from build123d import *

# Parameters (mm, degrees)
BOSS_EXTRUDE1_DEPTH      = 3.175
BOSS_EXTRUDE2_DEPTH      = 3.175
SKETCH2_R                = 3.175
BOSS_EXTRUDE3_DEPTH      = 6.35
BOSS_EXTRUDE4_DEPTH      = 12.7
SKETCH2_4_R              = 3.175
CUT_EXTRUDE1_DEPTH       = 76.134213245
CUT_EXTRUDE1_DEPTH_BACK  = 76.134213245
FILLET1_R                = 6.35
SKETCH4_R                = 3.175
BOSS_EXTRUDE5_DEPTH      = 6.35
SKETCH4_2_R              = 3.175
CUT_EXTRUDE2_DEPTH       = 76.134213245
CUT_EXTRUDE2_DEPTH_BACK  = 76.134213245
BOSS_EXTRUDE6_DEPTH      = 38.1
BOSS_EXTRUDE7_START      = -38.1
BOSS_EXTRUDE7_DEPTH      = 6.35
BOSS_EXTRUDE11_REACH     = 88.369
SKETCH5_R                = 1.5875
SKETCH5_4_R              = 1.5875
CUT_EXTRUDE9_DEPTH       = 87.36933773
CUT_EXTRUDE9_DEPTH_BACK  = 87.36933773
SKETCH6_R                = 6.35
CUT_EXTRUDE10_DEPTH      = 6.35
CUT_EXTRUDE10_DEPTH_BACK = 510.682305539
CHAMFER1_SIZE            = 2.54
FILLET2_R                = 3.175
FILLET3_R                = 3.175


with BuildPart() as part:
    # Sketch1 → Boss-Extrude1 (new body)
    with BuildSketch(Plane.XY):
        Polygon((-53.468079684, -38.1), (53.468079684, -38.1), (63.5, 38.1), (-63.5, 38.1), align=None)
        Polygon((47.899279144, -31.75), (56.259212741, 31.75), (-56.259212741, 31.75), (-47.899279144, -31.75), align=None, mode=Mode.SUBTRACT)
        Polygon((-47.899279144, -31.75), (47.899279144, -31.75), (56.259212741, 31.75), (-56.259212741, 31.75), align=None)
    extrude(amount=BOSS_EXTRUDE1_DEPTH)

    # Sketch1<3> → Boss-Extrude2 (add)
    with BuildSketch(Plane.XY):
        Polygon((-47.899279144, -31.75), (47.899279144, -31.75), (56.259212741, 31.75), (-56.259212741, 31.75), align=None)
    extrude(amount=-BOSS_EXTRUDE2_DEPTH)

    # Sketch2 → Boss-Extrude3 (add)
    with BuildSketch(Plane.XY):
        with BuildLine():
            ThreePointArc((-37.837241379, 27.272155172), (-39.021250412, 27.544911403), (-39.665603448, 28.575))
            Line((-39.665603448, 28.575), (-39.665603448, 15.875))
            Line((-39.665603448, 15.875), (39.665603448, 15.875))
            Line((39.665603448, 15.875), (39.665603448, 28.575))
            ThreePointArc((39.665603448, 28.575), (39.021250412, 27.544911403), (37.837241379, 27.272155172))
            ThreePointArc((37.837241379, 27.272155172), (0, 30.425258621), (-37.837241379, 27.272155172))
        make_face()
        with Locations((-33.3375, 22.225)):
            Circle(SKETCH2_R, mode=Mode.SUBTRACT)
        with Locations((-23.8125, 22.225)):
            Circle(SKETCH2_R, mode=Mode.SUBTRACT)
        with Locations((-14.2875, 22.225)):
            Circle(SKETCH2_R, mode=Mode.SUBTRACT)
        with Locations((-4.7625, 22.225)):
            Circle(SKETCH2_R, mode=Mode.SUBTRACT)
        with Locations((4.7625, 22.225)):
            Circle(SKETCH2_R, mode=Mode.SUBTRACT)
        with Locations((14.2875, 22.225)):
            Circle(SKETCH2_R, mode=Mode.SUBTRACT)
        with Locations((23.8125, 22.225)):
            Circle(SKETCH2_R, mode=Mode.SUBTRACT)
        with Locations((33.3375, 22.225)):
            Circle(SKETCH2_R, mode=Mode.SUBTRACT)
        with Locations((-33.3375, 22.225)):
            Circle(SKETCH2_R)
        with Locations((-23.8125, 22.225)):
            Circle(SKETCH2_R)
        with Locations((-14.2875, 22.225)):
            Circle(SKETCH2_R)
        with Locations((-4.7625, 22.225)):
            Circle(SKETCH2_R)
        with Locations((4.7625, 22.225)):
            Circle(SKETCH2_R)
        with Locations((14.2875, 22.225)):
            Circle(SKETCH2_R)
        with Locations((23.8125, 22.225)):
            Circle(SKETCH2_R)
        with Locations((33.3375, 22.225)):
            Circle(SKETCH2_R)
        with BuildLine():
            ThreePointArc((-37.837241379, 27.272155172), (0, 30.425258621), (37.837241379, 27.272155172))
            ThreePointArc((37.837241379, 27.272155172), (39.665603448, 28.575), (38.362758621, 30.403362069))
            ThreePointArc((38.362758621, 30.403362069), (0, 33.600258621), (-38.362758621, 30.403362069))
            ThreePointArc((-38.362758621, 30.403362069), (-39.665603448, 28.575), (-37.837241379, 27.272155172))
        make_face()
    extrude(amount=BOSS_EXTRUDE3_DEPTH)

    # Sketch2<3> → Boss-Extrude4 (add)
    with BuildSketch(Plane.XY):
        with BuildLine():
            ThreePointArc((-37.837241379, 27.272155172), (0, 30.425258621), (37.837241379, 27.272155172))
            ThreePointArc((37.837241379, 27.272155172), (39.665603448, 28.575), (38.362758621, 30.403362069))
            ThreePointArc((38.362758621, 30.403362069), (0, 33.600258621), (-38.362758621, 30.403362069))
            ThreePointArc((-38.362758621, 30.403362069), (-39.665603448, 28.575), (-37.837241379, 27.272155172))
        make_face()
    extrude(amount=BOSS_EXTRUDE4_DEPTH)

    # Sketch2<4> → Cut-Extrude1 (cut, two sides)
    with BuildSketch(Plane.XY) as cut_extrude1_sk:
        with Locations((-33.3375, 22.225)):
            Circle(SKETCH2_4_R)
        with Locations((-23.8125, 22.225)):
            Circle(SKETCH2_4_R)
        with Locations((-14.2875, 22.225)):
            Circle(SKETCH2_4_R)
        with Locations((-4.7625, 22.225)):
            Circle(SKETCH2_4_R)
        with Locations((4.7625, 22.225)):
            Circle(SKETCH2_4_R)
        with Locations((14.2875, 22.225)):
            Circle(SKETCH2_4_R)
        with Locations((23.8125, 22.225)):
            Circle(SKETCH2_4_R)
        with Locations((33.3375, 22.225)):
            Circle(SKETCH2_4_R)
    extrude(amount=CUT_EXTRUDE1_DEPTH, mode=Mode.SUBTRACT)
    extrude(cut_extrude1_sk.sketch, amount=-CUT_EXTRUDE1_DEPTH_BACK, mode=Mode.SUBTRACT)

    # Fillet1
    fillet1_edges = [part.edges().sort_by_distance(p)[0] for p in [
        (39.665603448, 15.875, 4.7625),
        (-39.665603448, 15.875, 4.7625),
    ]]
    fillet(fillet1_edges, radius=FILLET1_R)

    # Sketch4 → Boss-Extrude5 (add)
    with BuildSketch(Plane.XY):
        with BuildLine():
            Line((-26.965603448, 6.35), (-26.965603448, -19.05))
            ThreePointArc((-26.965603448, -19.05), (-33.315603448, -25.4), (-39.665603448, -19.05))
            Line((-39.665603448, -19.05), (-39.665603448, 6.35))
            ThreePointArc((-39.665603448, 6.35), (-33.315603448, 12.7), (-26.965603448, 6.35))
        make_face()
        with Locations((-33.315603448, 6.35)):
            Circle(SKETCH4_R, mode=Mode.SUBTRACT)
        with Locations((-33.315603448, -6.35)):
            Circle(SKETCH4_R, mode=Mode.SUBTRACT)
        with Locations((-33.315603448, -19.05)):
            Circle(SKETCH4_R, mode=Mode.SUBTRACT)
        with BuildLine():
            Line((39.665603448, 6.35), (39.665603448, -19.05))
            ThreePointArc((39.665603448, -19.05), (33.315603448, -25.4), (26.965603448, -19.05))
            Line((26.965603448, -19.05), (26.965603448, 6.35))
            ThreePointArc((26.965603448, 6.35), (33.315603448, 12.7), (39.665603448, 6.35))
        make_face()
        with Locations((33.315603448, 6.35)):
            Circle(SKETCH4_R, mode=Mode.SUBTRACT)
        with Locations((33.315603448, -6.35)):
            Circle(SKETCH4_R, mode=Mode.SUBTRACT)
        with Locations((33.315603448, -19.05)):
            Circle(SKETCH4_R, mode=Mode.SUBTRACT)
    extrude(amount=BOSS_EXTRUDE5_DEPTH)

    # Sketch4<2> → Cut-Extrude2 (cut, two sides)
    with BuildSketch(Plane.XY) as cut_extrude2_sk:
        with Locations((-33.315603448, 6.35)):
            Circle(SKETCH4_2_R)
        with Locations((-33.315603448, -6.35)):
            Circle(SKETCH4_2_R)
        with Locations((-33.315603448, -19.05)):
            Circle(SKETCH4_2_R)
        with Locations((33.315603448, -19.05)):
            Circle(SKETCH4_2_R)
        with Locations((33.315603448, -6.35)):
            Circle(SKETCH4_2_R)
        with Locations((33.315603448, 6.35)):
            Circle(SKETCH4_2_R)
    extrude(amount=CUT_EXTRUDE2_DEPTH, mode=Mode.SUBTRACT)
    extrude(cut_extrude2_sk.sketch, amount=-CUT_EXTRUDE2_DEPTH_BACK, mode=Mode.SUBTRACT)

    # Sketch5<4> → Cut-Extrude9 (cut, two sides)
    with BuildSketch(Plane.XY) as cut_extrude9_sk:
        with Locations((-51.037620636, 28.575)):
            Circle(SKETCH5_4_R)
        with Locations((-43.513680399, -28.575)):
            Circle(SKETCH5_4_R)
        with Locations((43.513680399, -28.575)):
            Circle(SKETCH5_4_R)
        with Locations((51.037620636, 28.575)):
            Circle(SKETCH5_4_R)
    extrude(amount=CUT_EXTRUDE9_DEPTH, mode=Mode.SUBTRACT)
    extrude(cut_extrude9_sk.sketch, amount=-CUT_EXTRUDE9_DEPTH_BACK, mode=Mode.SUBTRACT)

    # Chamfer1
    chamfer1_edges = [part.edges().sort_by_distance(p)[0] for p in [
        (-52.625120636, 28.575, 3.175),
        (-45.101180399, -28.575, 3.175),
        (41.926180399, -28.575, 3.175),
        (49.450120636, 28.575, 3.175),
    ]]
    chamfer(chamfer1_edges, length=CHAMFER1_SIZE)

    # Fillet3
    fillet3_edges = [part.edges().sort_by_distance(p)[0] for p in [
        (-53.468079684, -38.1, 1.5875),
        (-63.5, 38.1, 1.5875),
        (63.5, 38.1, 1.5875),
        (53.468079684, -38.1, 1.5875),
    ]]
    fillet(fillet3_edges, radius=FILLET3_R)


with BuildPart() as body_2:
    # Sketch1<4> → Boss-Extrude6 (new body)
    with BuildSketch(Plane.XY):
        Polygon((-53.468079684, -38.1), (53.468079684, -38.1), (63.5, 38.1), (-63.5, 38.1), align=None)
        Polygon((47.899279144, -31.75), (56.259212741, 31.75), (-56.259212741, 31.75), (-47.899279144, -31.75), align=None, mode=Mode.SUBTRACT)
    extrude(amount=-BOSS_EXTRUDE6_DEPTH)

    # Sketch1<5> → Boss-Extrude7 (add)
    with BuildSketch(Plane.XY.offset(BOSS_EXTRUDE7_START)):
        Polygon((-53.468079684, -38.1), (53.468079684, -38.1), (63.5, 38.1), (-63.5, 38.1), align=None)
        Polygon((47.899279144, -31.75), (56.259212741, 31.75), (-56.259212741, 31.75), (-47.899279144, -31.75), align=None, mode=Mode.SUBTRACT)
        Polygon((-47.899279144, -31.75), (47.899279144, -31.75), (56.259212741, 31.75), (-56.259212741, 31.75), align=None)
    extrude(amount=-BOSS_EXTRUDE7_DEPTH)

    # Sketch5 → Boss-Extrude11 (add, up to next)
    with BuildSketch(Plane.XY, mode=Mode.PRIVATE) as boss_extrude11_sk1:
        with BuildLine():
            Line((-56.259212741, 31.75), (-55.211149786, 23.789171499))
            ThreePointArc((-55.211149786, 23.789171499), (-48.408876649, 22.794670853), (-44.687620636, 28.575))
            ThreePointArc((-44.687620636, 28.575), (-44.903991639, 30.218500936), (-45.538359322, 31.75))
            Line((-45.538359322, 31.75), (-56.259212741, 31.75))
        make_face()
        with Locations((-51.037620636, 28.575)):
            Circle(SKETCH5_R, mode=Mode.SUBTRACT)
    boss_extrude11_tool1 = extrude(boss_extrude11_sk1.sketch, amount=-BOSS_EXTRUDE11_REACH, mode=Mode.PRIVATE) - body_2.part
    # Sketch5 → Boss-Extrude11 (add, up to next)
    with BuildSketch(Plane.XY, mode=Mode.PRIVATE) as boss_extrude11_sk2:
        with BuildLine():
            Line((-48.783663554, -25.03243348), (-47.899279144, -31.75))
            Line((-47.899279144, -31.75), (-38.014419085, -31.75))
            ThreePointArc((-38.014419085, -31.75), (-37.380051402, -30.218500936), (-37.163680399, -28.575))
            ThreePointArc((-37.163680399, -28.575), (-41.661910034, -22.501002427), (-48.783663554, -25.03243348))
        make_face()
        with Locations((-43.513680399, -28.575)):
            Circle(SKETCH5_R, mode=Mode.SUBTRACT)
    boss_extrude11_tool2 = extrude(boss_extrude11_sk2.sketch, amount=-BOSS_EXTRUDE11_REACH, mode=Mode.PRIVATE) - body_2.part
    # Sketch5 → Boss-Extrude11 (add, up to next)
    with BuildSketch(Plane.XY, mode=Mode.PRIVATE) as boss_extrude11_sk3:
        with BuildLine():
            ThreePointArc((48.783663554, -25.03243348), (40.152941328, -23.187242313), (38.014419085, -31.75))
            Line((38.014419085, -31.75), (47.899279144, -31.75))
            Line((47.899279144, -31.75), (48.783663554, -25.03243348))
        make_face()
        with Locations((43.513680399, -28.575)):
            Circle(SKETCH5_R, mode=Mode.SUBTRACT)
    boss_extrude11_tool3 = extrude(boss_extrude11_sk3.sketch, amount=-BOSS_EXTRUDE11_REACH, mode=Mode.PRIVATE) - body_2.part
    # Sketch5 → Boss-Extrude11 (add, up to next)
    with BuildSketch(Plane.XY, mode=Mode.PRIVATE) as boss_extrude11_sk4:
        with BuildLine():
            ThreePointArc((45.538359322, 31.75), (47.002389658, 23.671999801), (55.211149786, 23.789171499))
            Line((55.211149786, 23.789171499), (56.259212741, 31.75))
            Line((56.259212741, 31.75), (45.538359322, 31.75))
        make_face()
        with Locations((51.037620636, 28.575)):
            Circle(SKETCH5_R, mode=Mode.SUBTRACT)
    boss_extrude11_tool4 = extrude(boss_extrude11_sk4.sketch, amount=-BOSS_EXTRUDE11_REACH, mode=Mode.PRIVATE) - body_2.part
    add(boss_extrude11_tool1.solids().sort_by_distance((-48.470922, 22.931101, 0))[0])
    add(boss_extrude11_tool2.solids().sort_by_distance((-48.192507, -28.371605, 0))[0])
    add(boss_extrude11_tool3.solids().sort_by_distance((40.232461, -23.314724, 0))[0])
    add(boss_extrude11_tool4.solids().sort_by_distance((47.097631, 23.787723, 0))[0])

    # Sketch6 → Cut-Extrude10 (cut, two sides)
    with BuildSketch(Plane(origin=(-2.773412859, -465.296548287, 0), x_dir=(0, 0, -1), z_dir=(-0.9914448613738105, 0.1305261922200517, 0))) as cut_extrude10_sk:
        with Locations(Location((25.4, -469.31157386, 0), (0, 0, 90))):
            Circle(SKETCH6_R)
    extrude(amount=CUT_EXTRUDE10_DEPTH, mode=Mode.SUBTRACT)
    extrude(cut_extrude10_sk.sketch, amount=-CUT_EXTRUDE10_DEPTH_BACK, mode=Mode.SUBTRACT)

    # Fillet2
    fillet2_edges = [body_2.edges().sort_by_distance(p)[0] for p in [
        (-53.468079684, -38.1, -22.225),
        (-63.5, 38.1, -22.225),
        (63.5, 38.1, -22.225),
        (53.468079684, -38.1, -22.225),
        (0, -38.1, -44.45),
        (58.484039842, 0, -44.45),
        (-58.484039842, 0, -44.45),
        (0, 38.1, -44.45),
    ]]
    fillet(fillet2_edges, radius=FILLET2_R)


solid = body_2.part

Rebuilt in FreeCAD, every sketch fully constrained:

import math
import FreeCAD as App
import Part
import Sketcher
from FreeCAD import Vector
Q = App.Units.Quantity


def edges_at(feature, points):
    """Names of the edges that pass closest to the given points."""
    edges = feature.Shape.Edges
    near = lambda p: min(range(len(edges)), key=lambda i: edges[i].distToShape(Part.Vertex(*p))[0])
    return sorted({f"Edge{near(p) + 1}" for p in points})


def add_polygon(sketch, points):
    """Adds a closed chain of lines whose ends are joined by coincident constraints."""
    first, n = sketch.GeometryCount, len(points)
    for a, b in zip(points, points[1:] + points[:1]):
        sketch.addGeometry(Part.LineSegment(App.Vector(*a, 0), App.Vector(*b, 0)), False)
    for i in range(n):
        sketch.addConstraint(Sketcher.Constraint("Coincident", first + i, 2, first + (i + 1) % n, 1))

doc = App.newDocument("Part")
body = doc.addObject("PartDesign::Body", "Body")

sketch1 = body.newObject("Sketcher::SketchObject", "Sketch")
sketch1.AttachmentSupport = (doc.getObject("XY_Plane"), [""])
sketch1.MapMode = "FlatFace"
add_polygon(sketch1, [(-53.46808, -38.1), (53.46808, -38.1), (63.5, 38.1), (-63.5, 38.1)])
sketch1.addConstraint([
    Sketcher.Constraint("Horizontal", 0),
    Sketcher.Constraint("Horizontal", 2),
    Sketcher.Constraint("Equal", 1, 3),
    Sketcher.Constraint("DistanceX", 2, 2, 2, 1, Q("5 in")),
    Sketcher.Constraint("DistanceY", 0, 2, 1, 2, Q("3 in")),
    Sketcher.Constraint("DistanceY", 0, 2, -1, 1, Q("1.5 in")),
    Sketcher.Constraint("DistanceX", -1, 1, 1, 2, Q("2.5 in")),
    Sketcher.Constraint("Angle", 1, Q("82.5 deg")),
])
pad1 = body.newObject("PartDesign::Pad", "Pad")
pad1.Profile = sketch1
pad1.Length = Q("0.125 in")

sketch2 = body.newObject("Sketcher::SketchObject", "Sketch001")
sketch2.AttachmentSupport = (doc.getObject("XY_Plane"), [""])
sketch2.MapMode = "FlatFace"
add_polygon(sketch2, [(-47.899279, -31.75), (47.899279, -31.75), (56.259213, 31.75), (-56.259213, 31.75)])
sketch2.addConstraint([
    Sketcher.Constraint("Horizontal", 0),
    Sketcher.Constraint("Horizontal", 2),
    Sketcher.Constraint("Equal", 1, 3),
    Sketcher.Constraint("Angle", 1, Q("82.5 deg")),
    Sketcher.Constraint("DistanceY", 0, 2, 1, 2, Q("2.5 in")),
    Sketcher.Constraint("DistanceY", 0, 2, -1, 1, Q("1.25 in")),
    Sketcher.Constraint("DistanceX", 0, 1, 0, 2, 95.798558),
    Sketcher.Constraint("DistanceX", -1, 1, 0, 2, 47.899279),
])
pad2 = body.newObject("PartDesign::Pad", "Pad001")
pad2.Profile = sketch2
pad2.Length = Q("0.125 in")
pad2.Reversed = True

sketch3 = body.newObject("Sketcher::SketchObject", "Sketch002")
sketch3.AttachmentSupport = (doc.getObject("XY_Plane"), [""])
sketch3.MapMode = "FlatFace"
sketch3.addGeometry([
    Part.LineSegment(Vector(-39.665603, 28.575, 0), Vector(-39.665603, 15.875, 0)),
    Part.LineSegment(Vector(-39.665603, 15.875, 0), Vector(39.665603, 15.875, 0)),
    Part.LineSegment(Vector(39.665603, 15.875, 0), Vector(39.665603, 28.575, 0)),
    Part.ArcOfCircle(Part.Circle(Vector(38.1, 28.837759, 0), Vector(0, 0, 1), 1.5875), math.radians(-9.527283), math.radians(80.472717)),
    Part.ArcOfCircle(Part.Circle(Vector(0, -198.174741, 0), Vector(0, 0, 1), 231.775), math.radians(80.472717), math.radians(99.527283)),
    Part.ArcOfCircle(Part.Circle(Vector(-38.1, 28.837759, 0), Vector(0, 0, 1), 1.5875), math.radians(99.527283), math.radians(189.527283)),
], False)
sketch3.addConstraint([
    Sketcher.Constraint("Coincident", 0, 2, 1, 1),
    Sketcher.Constraint("Coincident", 1, 2, 2, 1),
    Sketcher.Constraint("Coincident", 2, 2, 3, 1),
    Sketcher.Constraint("Tangent", 3, 2, 4, 1),
    Sketcher.Constraint("Tangent", 4, 2, 5, 1),
    Sketcher.Constraint("Coincident", 5, 2, 0, 1),
    Sketcher.Constraint("Vertical", 0),
    Sketcher.Constraint("Horizontal", 1),
    Sketcher.Constraint("Vertical", 2),
    Sketcher.Constraint("Equal", 3, 5),
    Sketcher.Constraint("Symmetric", 3, 3, 5, 3, -2),
    Sketcher.Constraint("Horizontal", 2, 2, 5, 2),
    Sketcher.Constraint("DistanceY", 0, 2, 0, 1, Q("0.5 in")),
    Sketcher.Constraint("Radius", 3, Q("0.0625 in")),
    Sketcher.Constraint("Radius", 4, Q("9.125 in")),
    Sketcher.Constraint("DistanceX", 5, 3, 3, 3, Q("3 in")),
    Sketcher.Constraint("DistanceY", -1, 1, 0, 2, Q("0.625 in")),
    Sketcher.Constraint("DistanceX", 1, 1, 1, 2, 79.331207),
])
pad3 = body.newObject("PartDesign::Pad", "Pad002")
pad3.Profile = sketch3
pad3.Length = Q("0.25 in")

sketch4 = body.newObject("Sketcher::SketchObject", "Sketch003")
sketch4.AttachmentSupport = (doc.getObject("XY_Plane"), [""])
sketch4.MapMode = "FlatFace"
sketch4.addGeometry([
    Part.ArcOfCircle(Part.Circle(Vector(0, -198.174741, 0), Vector(0, 0, 1), 228.6), math.radians(80.472717), math.radians(99.527283)),
    Part.ArcOfCircle(Part.Circle(Vector(38.1, 28.837759, 0), Vector(0, 0, 1), 1.5875), math.radians(-99.527283), math.radians(80.472717)),
    Part.ArcOfCircle(Part.Circle(Vector(0, -198.174741, 0), Vector(0, 0, 1), 231.775), math.radians(80.472717), math.radians(99.527283)),
    Part.ArcOfCircle(Part.Circle(Vector(-38.1, 28.837759, 0), Vector(0, 0, 1), 1.5875), math.radians(99.527283), math.radians(279.527283)),
], False)
sketch4.addConstraint([
    Sketcher.Constraint("Tangent", 0, 1, 1, 1),
    Sketcher.Constraint("Tangent", 1, 2, 2, 1),
    Sketcher.Constraint("Tangent", 2, 2, 3, 1),
    Sketcher.Constraint("Tangent", 3, 2, 0, 2),
    Sketcher.Constraint("Coincident", 2, 3, 0, 3),
    Sketcher.Constraint("Symmetric", 1, 3, 3, 3, -2),
    Sketcher.Constraint("Radius", 0, Q("9 in")),
    Sketcher.Constraint("Radius", 1, Q("0.0625 in")),
    Sketcher.Constraint("DistanceX", 3, 3, 1, 3, Q("3 in")),
    Sketcher.Constraint("DistanceY", 0, 3, -1, 1, 198.174741),
])
pad4 = body.newObject("PartDesign::Pad", "Pad003")
pad4.Profile = sketch4
pad4.Length = Q("0.5 in")

sketch5 = body.newObject("Sketcher::SketchObject", "Sketch004")
sketch5.AttachmentSupport = (doc.getObject("XY_Plane"), [""])
sketch5.MapMode = "FlatFace"
sketch5.addGeometry([
    Part.Circle(Vector(-33.3375, 22.225, 0), Vector(0, 0, 1), 3.175),
    Part.Circle(Vector(-23.8125, 22.225, 0), Vector(0, 0, 1), 3.175),
    Part.Circle(Vector(-14.2875, 22.225, 0), Vector(0, 0, 1), 3.175),
    Part.Circle(Vector(-4.7625, 22.225, 0), Vector(0, 0, 1), 3.175),
    Part.Circle(Vector(4.7625, 22.225, 0), Vector(0, 0, 1), 3.175),
    Part.Circle(Vector(14.2875, 22.225, 0), Vector(0, 0, 1), 3.175),
    Part.Circle(Vector(23.8125, 22.225, 0), Vector(0, 0, 1), 3.175),
    Part.Circle(Vector(33.3375, 22.225, 0), Vector(0, 0, 1), 3.175),
], False)
sketch5.addConstraint([
    Sketcher.Constraint("Equal", 0, 1),
    Sketcher.Constraint("Equal", 1, 2),
    Sketcher.Constraint("Equal", 2, 3),
    Sketcher.Constraint("Equal", 3, 4),
    Sketcher.Constraint("Equal", 4, 5),
    Sketcher.Constraint("Equal", 5, 6),
    Sketcher.Constraint("Equal", 6, 7),
    Sketcher.Constraint("Symmetric", 3, 3, 4, 3, -2),
    Sketcher.Constraint("Symmetric", 2, 3, 5, 3, -2),
    Sketcher.Constraint("Symmetric", 1, 3, 6, 3, -2),
    Sketcher.Constraint("Symmetric", 0, 3, 7, 3, -2),
    Sketcher.Constraint("Horizontal", 0, 3, 1, 3),
    Sketcher.Constraint("Horizontal", 1, 3, 2, 3),
    Sketcher.Constraint("Horizontal", 2, 3, 3, 3),
    Sketcher.Constraint("Diameter", 0, Q("0.25 in")),
    Sketcher.Constraint("DistanceX", 0, 3, 4, 3, Q("1.5 in")),
    Sketcher.Constraint("DistanceX", 1, 3, 5, 3, Q("1.5 in")),
    Sketcher.Constraint("DistanceX", 0, 3, 2, 3, Q("0.75 in")),
    Sketcher.Constraint("DistanceX", 0, 3, -1, 1, Q("1.3125 in")),
    Sketcher.Constraint("DistanceY", -1, 1, 0, 3, Q("0.875 in")),
])
pocket1 = body.newObject("PartDesign::Pocket", "Pocket")
pocket1.Profile = sketch5
pocket1.Type = "ThroughAll"
pocket1.Midplane = True
doc.recompute()

fillet = body.newObject("PartDesign::Fillet", "Fillet")
fillet.Base = (pocket1, edges_at(pocket1, [(39.666, 15.875, 4.763), (-39.666, 15.875, 4.763)]))
fillet.Radius = Q("0.25 in")

sketch6 = body.newObject("Sketcher::SketchObject", "Sketch005")
sketch6.AttachmentSupport = (doc.getObject("XY_Plane"), [""])
sketch6.MapMode = "FlatFace"
sketch6.addGeometry([
    Part.LineSegment(Vector(-26.965603, -19.05, 0), Vector(-26.965603, 6.35, 0)),
    Part.ArcOfCircle(Part.Circle(Vector(-33.315603, 6.35, 0), Vector(0, 0, 1), 6.35), math.radians(0), math.radians(180)),
    Part.LineSegment(Vector(-39.665603, 6.35, 0), Vector(-39.665603, -19.05, 0)),
    Part.ArcOfCircle(Part.Circle(Vector(-33.315603, -19.05, 0), Vector(0, 0, 1), 6.35), math.radians(180), math.radians(360)),
    Part.Circle(Vector(-33.315603, -19.05, 0), Vector(0, 0, 1), 3.175),
    Part.Circle(Vector(-33.315603, -6.35, 0), Vector(0, 0, 1), 3.175),
    Part.Circle(Vector(-33.315603, 6.35, 0), Vector(0, 0, 1), 3.175),
    Part.LineSegment(Vector(39.665603, -19.05, 0), Vector(39.665603, 6.35, 0)),
    Part.ArcOfCircle(Part.Circle(Vector(33.315603, 6.35, 0), Vector(0, 0, 1), 6.35), math.radians(0), math.radians(180)),
    Part.LineSegment(Vector(26.965603, 6.35, 0), Vector(26.965603, -19.05, 0)),
    Part.ArcOfCircle(Part.Circle(Vector(33.315603, -19.05, 0), Vector(0, 0, 1), 6.35), math.radians(180), math.radians(360)),
    Part.Circle(Vector(33.315603, -19.05, 0), Vector(0, 0, 1), 3.175),
    Part.Circle(Vector(33.315603, -6.35, 0), Vector(0, 0, 1), 3.175),
    Part.Circle(Vector(33.315603, 6.35, 0), Vector(0, 0, 1), 3.175),
], False)
sketch6.addConstraint([
    Sketcher.Constraint("Tangent", 0, 2, 1, 1),
    Sketcher.Constraint("Tangent", 1, 2, 2, 1),
    Sketcher.Constraint("Tangent", 2, 2, 3, 1),
    Sketcher.Constraint("Tangent", 3, 2, 0, 1),
    Sketcher.Constraint("Tangent", 7, 2, 8, 1),
    Sketcher.Constraint("Tangent", 8, 2, 9, 1),
    Sketcher.Constraint("Tangent", 9, 2, 10, 1),
    Sketcher.Constraint("Tangent", 10, 2, 7, 1),
    Sketcher.Constraint("Vertical", 0),
    Sketcher.Constraint("Vertical", 2),
    Sketcher.Constraint("Vertical", 7),
    Sketcher.Constraint("Vertical", 9),
    Sketcher.Constraint("Coincident", 4, 3, 3, 3),
    Sketcher.Constraint("Coincident", 6, 3, 1, 3),
    Sketcher.Constraint("Coincident", 11, 3, 10, 3),
    Sketcher.Constraint("Coincident", 13, 3, 8, 3),
    Sketcher.Constraint("Equal", 4, 5),
    Sketcher.Constraint("Equal", 5, 6),
    Sketcher.Constraint("Equal", 3, 8),
    Sketcher.Constraint("Equal", 6, 11),
    Sketcher.Constraint("Equal", 11, 12),
    Sketcher.Constraint("Equal", 12, 13),
    Sketcher.Constraint("Symmetric", 5, 3, 8, 3, -1, 1),
    Sketcher.Constraint("Symmetric", 1, 3, 12, 3, -1, 1),
    Sketcher.Constraint("Symmetric", 1, 3, 8, 3, -2),
    Sketcher.Constraint("Horizontal", 4, 3, 10, 3),
    Sketcher.Constraint("Diameter", 4, Q("0.25 in")),
    Sketcher.Constraint("DistanceY", 0, 1, 0, 2, Q("1 in")),
    Sketcher.Constraint("Radius", 1, Q("0.25 in")),
    Sketcher.Constraint("DistanceY", 5, 3, 1, 3, Q("0.5 in")),
    Sketcher.Constraint("DistanceX", 1, 3, -1, 1, 33.315603),
])
pad5 = body.newObject("PartDesign::Pad", "Pad004")
pad5.Profile = sketch6
pad5.Length = Q("0.25 in")

sketch7 = body.newObject("Sketcher::SketchObject", "Sketch006")
sketch7.AttachmentSupport = (doc.getObject("XY_Plane"), [""])
sketch7.MapMode = "FlatFace"
sketch7.addGeometry([
    Part.Circle(Vector(-33.315603, 6.35, 0), Vector(0, 0, 1), 3.175),
    Part.Circle(Vector(-33.315603, -6.35, 0), Vector(0, 0, 1), 3.175),
    Part.Circle(Vector(-33.315603, -19.05, 0), Vector(0, 0, 1), 3.175),
    Part.Circle(Vector(33.315603, -19.05, 0), Vector(0, 0, 1), 3.175),
    Part.Circle(Vector(33.315603, -6.35, 0), Vector(0, 0, 1), 3.175),
    Part.Circle(Vector(33.315603, 6.35, 0), Vector(0, 0, 1), 3.175),
], False)
sketch7.addConstraint([
    Sketcher.Constraint("Equal", 0, 1),
    Sketcher.Constraint("Equal", 1, 2),
    Sketcher.Constraint("Equal", 2, 3),
    Sketcher.Constraint("Equal", 3, 4),
    Sketcher.Constraint("Equal", 4, 5),
    Sketcher.Constraint("Symmetric", 0, 3, 4, 3, -1, 1),
    Sketcher.Constraint("Symmetric", 1, 3, 5, 3, -1, 1),
    Sketcher.Constraint("Symmetric", 2, 3, 3, 3, -2),
    Sketcher.Constraint("Symmetric", 1, 3, 4, 3, -2),
    Sketcher.Constraint("Vertical", 1, 3, 2, 3),
    Sketcher.Constraint("Diameter", 0, Q("0.25 in")),
    Sketcher.Constraint("DistanceY", 2, 3, 0, 3, Q("1 in")),
    Sketcher.Constraint("DistanceY", 1, 3, 0, 3, Q("0.5 in")),
    Sketcher.Constraint("DistanceX", 0, 3, -1, 1, 33.315603),
])
pocket2 = body.newObject("PartDesign::Pocket", "Pocket001")
pocket2.Profile = sketch7
pocket2.Type = "ThroughAll"
pocket2.Midplane = True

sketch8 = body.newObject("Sketcher::SketchObject", "Sketch007")
sketch8.AttachmentSupport = (doc.getObject("XY_Plane"), [""])
sketch8.MapMode = "FlatFace"
sketch8.addGeometry([
    Part.Circle(Vector(-51.037621, 28.575, 0), Vector(0, 0, 1), 1.5875),
    Part.Circle(Vector(-43.51368, -28.575, 0), Vector(0, 0, 1), 1.5875),
    Part.Circle(Vector(43.51368, -28.575, 0), Vector(0, 0, 1), 1.5875),
    Part.Circle(Vector(51.037621, 28.575, 0), Vector(0, 0, 1), 1.5875),
], False)
sketch8.addConstraint([
    Sketcher.Constraint("Equal", 0, 1),
    Sketcher.Constraint("Equal", 1, 2),
    Sketcher.Constraint("Equal", 2, 3),
    Sketcher.Constraint("Symmetric", 1, 3, 2, 3, -2),
    Sketcher.Constraint("Symmetric", 0, 3, 3, 3, -2),
    Sketcher.Constraint("Diameter", 0, Q("0.125 in")),
    Sketcher.Constraint("DistanceY", 1, 3, 0, 3, Q("2.25 in")),
    Sketcher.Constraint("DistanceY", -1, 1, 0, 3, Q("1.125 in")),
    Sketcher.Constraint("DistanceX", 0, 3, 2, 3, 94.551301),
    Sketcher.Constraint("DistanceX", 0, 3, -1, 1, 51.037621),
])
pocket3 = body.newObject("PartDesign::Pocket", "Pocket002")
pocket3.Profile = sketch8
pocket3.Type = "ThroughAll"
pocket3.Midplane = True
doc.recompute()

chamfer = body.newObject("PartDesign::Chamfer", "Chamfer")
chamfer.Base = (pocket3, edges_at(pocket3, [
    (-52.625, 28.575, 3.175),
    (-45.101, -28.575, 3.175),
    (41.926, -28.575, 3.175),
    (49.45, 28.575, 3.175),
]))
chamfer.Size = Q("0.1 in")
doc.recompute()

fillet2 = body.newObject("PartDesign::Fillet", "Fillet001")
fillet2.Base = (chamfer, edges_at(chamfer, [
    (-53.468, -38.1, 1.587),
    (-63.5, 38.1, 1.587),
    (63.5, 38.1, 1.587),
    (53.468, -38.1, 1.587),
]))
fillet2.Radius = Q("0.125 in")
body2 = doc.addObject("PartDesign::Body", "Body001")

sketch9 = body2.newObject("Sketcher::SketchObject", "Sketch008")
sketch9.AttachmentSupport = (doc.getObject("XY_Plane001"), [""])
sketch9.MapMode = "FlatFace"
add_polygon(sketch9, [(-53.46808, -38.1), (53.46808, -38.1), (63.5, 38.1), (-63.5, 38.1)])
add_polygon(sketch9, [(56.259213, 31.75), (47.899279, -31.75), (-47.899279, -31.75), (-56.259213, 31.75)])
sketch9.addConstraint([
    Sketcher.Constraint("Horizontal", 0),
    Sketcher.Constraint("Horizontal", 2),
    Sketcher.Constraint("Horizontal", 5),
    Sketcher.Constraint("Horizontal", 7),
    Sketcher.Constraint("Parallel", 1, 4),
    Sketcher.Constraint("Parallel", 3, 6),
    Sketcher.Constraint("Equal", 1, 3),
    Sketcher.Constraint("DistanceX", 2, 2, 2, 1, Q("5 in")),
    Sketcher.Constraint("DistanceY", 0, 2, 1, 2, Q("3 in")),
    Sketcher.Constraint("DistanceY", 0, 2, -1, 1, Q("1.5 in")),
    Sketcher.Constraint("DistanceX", -1, 1, 1, 2, Q("2.5 in")),
    Sketcher.Constraint("Angle", 1, Q("82.5 deg")),
    Sketcher.Constraint("DistanceY", 5, 2, 6, 2, Q("2.5 in")),
    Sketcher.Constraint("DistanceY", 4, 2, -1, 1, Q("1.25 in")),
    Sketcher.Constraint("DistanceX", 5, 2, 5, 1, 95.798558),
    Sketcher.Constraint("DistanceX", 4, 2, 0, 2, 5.568801),
])
pad6 = body2.newObject("PartDesign::Pad", "Pad005")
pad6.Profile = sketch9
pad6.Length = Q("1.5 in")
pad6.Reversed = True

sketch10 = body2.newObject("Sketcher::SketchObject", "Sketch009")
sketch10.AttachmentSupport = (doc.getObject("XY_Plane001"), [""])
sketch10.MapMode = "FlatFace"
sketch10.AttachmentOffset = App.Placement(Vector(0, 0, -1.5 * 25.4), App.Rotation())
add_polygon(sketch10, [(-53.46808, -38.1), (53.46808, -38.1), (63.5, 38.1), (-63.5, 38.1)])
sketch10.addConstraint([
    Sketcher.Constraint("Horizontal", 0),
    Sketcher.Constraint("Horizontal", 2),
    Sketcher.Constraint("Equal", 1, 3),
    Sketcher.Constraint("DistanceX", 2, 2, 2, 1, Q("5 in")),
    Sketcher.Constraint("DistanceY", 0, 2, 1, 2, Q("3 in")),
    Sketcher.Constraint("DistanceY", 0, 2, -1, 1, Q("1.5 in")),
    Sketcher.Constraint("DistanceX", -1, 1, 1, 2, Q("2.5 in")),
    Sketcher.Constraint("Angle", 1, Q("82.5 deg")),
])
pad7 = body2.newObject("PartDesign::Pad", "Pad006")
pad7.Profile = sketch10
pad7.Length = Q("0.25 in")
pad7.Reversed = True

sketch11 = body2.newObject("Sketcher::SketchObject", "Sketch010")
sketch11.AttachmentSupport = (doc.getObject("XY_Plane001"), [""])
sketch11.MapMode = "FlatFace"
sketch11.addGeometry([
    Part.LineSegment(Vector(-56.259213, 31.75, 0), Vector(-55.21115, 23.789171, 0)),
    Part.ArcOfCircle(Part.Circle(Vector(-51.037621, 28.575, 0), Vector(0, 0, 1), 6.35), math.radians(-131.090378), math.radians(0)),
    Part.ArcOfCircle(Part.Circle(Vector(-51.037621, 28.575, 0), Vector(0, 0, 1), 6.35), math.radians(0), math.radians(30)),
    Part.LineSegment(Vector(-45.538359, 31.75, 0), Vector(-56.259213, 31.75, 0)),
    Part.Circle(Vector(-51.037621, 28.575, 0), Vector(0, 0, 1), 1.5875),
], False)
sketch11.addConstraint([
    Sketcher.Constraint("Coincident", 0, 2, 1, 1),
    Sketcher.Constraint("Tangent", 1, 2, 2, 1),
    Sketcher.Constraint("Coincident", 2, 2, 3, 1),
    Sketcher.Constraint("Coincident", 3, 2, 0, 1),
    Sketcher.Constraint("Horizontal", 3),
    Sketcher.Constraint("Coincident", 4, 3, 1, 3),
    Sketcher.Constraint("Equal", 1, 2),
    Sketcher.Constraint("Horizontal", 4, 3, 1, 2),
    Sketcher.Constraint("Radius", 1, Q("0.25 in")),
    Sketcher.Constraint("Diameter", 4, Q("0.125 in")),
    Sketcher.Constraint("Angle", 0, Q("-82.5 deg")),
    Sketcher.Constraint("DistanceY", -1, 1, 2, 2, Q("1.25 in")),
    Sketcher.Constraint("DistanceY", -1, 1, 1, 3, Q("1.125 in")),
    Sketcher.Constraint("DistanceX", 3, 2, 3, 1, 10.720853),
    Sketcher.Constraint("DistanceX", 1, 3, -1, 1, 51.037621),
])
pad8 = body2.newObject("PartDesign::Pad", "Pad007")
pad8.Profile = sketch11
pad8.Type = "UpToFirst"
pad8.Reversed = True

sketch12 = body2.newObject("Sketcher::SketchObject", "Sketch011")
sketch12.AttachmentSupport = (doc.getObject("XY_Plane001"), [""])
sketch12.MapMode = "FlatFace"
sketch12.addGeometry([
    Part.LineSegment(Vector(-48.783664, -25.032433, 0), Vector(-47.899279, -31.75, 0)),
    Part.LineSegment(Vector(-47.899279, -31.75, 0), Vector(-38.014419, -31.75, 0)),
    Part.ArcOfCircle(Part.Circle(Vector(-43.51368, -28.575, 0), Vector(0, 0, 1), 6.35), math.radians(-30), math.radians(0)),
    Part.ArcOfCircle(Part.Circle(Vector(-43.51368, -28.575, 0), Vector(0, 0, 1), 6.35), math.radians(0), math.radians(146.090378)),
    Part.Circle(Vector(-43.51368, -28.575, 0), Vector(0, 0, 1), 1.5875),
], False)
sketch12.addConstraint([
    Sketcher.Constraint("Coincident", 0, 2, 1, 1),
    Sketcher.Constraint("Coincident", 1, 2, 2, 1),
    Sketcher.Constraint("Tangent", 2, 2, 3, 1),
    Sketcher.Constraint("Coincident", 3, 2, 0, 1),
    Sketcher.Constraint("Horizontal", 1),
    Sketcher.Constraint("Coincident", 4, 3, 2, 3),
    Sketcher.Constraint("Equal", 2, 3),
    Sketcher.Constraint("Horizontal", 4, 3, 2, 2),
    Sketcher.Constraint("Radius", 2, Q("0.25 in")),
    Sketcher.Constraint("Diameter", 4, Q("0.125 in")),
    Sketcher.Constraint("Angle", 0, Q("-82.5 deg")),
    Sketcher.Constraint("DistanceY", 0, 2, -1, 1, Q("1.25 in")),
    Sketcher.Constraint("DistanceY", 2, 3, -1, 1, Q("1.125 in")),
    Sketcher.Constraint("DistanceX", 1, 1, 1, 2, 9.88486),
    Sketcher.Constraint("DistanceX", 2, 3, -1, 1, 43.51368),
])
pad9 = body2.newObject("PartDesign::Pad", "Pad008")
pad9.Profile = sketch12
pad9.Type = "UpToFirst"
pad9.Reversed = True

sketch13 = body2.newObject("Sketcher::SketchObject", "Sketch012")
sketch13.AttachmentSupport = (doc.getObject("XY_Plane001"), [""])
sketch13.MapMode = "FlatFace"
sketch13.addGeometry([
    Part.ArcOfCircle(Part.Circle(Vector(43.51368, -28.575, 0), Vector(0, 0, 1), 6.35), math.radians(33.909622), math.radians(210)),
    Part.LineSegment(Vector(38.014419, -31.75, 0), Vector(47.899279, -31.75, 0)),
    Part.LineSegment(Vector(47.899279, -31.75, 0), Vector(48.783664, -25.032433, 0)),
    Part.Circle(Vector(43.51368, -28.575, 0), Vector(0, 0, 1), 1.5875),
], False)
sketch13.addConstraint([
    Sketcher.Constraint("Coincident", 0, 2, 1, 1),
    Sketcher.Constraint("Coincident", 1, 2, 2, 1),
    Sketcher.Constraint("Coincident", 2, 2, 0, 1),
    Sketcher.Constraint("Horizontal", 1),
    Sketcher.Constraint("Coincident", 3, 3, 0, 3),
    Sketcher.Constraint("Radius", 0, Q("0.25 in")),
    Sketcher.Constraint("Diameter", 3, Q("0.125 in")),
    Sketcher.Constraint("Angle", 2, Q("82.5 deg")),
    Sketcher.Constraint("DistanceY", 0, 2, -1, 1, Q("1.25 in")),
    Sketcher.Constraint("DistanceY", 0, 3, -1, 1, Q("1.125 in")),
    Sketcher.Constraint("DistanceX", 1, 1, 1, 2, 9.88486),
    Sketcher.Constraint("DistanceX", -1, 1, 0, 3, 43.51368),
])
pad10 = body2.newObject("PartDesign::Pad", "Pad009")
pad10.Profile = sketch13
pad10.Type = "UpToFirst"
pad10.Reversed = True

sketch14 = body2.newObject("Sketcher::SketchObject", "Sketch013")
sketch14.AttachmentSupport = (doc.getObject("XY_Plane001"), [""])
sketch14.MapMode = "FlatFace"
sketch14.addGeometry([
    Part.ArcOfCircle(Part.Circle(Vector(51.037621, 28.575, 0), Vector(0, 0, 1), 6.35), math.radians(150), math.radians(311.090378)),
    Part.LineSegment(Vector(55.21115, 23.789171, 0), Vector(56.259213, 31.75, 0)),
    Part.LineSegment(Vector(56.259213, 31.75, 0), Vector(45.538359, 31.75, 0)),
    Part.Circle(Vector(51.037621, 28.575, 0), Vector(0, 0, 1), 1.5875),
], False)
sketch14.addConstraint([
    Sketcher.Constraint("Coincident", 0, 2, 1, 1),
    Sketcher.Constraint("Coincident", 1, 2, 2, 1),
    Sketcher.Constraint("Coincident", 2, 2, 0, 1),
    Sketcher.Constraint("Horizontal", 2),
    Sketcher.Constraint("Coincident", 3, 3, 0, 3),
    Sketcher.Constraint("Radius", 0, Q("0.25 in")),
    Sketcher.Constraint("Diameter", 3, Q("0.125 in")),
    Sketcher.Constraint("Angle", 1, Q("82.5 deg")),
    Sketcher.Constraint("DistanceY", -1, 1, 1, 2, Q("1.25 in")),
    Sketcher.Constraint("DistanceY", -1, 1, 0, 3, Q("1.125 in")),
    Sketcher.Constraint("DistanceX", 2, 2, 2, 1, 10.720853),
    Sketcher.Constraint("DistanceX", -1, 1, 0, 3, 51.037621),
])
pad11 = body2.newObject("PartDesign::Pad", "Pad010")
pad11.Profile = sketch14
pad11.Type = "UpToFirst"
pad11.Reversed = True

sketch15 = body2.newObject("Sketcher::SketchObject", "Sketch014")
sketch15.Placement = App.Placement(Vector(-2.773413, -465.296548, 0), App.Rotation(Vector(0, 0, -1), Vector(-0.130526192, -0.991444861, 0), Vector(-0.991444861, 0.130526192, 0), "ZXY"))
sketch15.addGeometry(Part.Circle(Vector(25.4, -469.311573, 0), Vector(0, 0, 1), 6.35), False)
sketch15.addConstraint([
    Sketcher.Constraint("Diameter", 0, Q("0.5 in")),
    Sketcher.Constraint("DistanceX", -1, 1, 0, 3, Q("1 in")),
    Sketcher.Constraint("DistanceY", 0, 3, -1, 1, 469.311573),
])
pocket4 = body2.newObject("PartDesign::Pocket", "Pocket003")
pocket4.Profile = sketch15
pocket4.Type = "TwoLengths"
pocket4.Length = Q("0.25 in")
pocket4.Length2 = 510.682306
pocket4.Reversed = True
doc.recompute()

fillet3 = body2.newObject("PartDesign::Fillet", "Fillet002")
fillet3.Base = (pocket4, edges_at(pocket4, [
    (-53.468, -38.1, -22.225),
    (-63.5, 38.1, -22.225),
    (63.5, 38.1, -22.225),
    (53.468, -38.1, -22.225),
    (0, -38.1, -44.45),
    (58.484, 0, -44.45),
    (-58.484, 0, -44.45),
    (0, 38.1, -44.45),
]))
fillet3.Radius = Q("0.125 in")
body.Visibility = False

doc.recompute()
